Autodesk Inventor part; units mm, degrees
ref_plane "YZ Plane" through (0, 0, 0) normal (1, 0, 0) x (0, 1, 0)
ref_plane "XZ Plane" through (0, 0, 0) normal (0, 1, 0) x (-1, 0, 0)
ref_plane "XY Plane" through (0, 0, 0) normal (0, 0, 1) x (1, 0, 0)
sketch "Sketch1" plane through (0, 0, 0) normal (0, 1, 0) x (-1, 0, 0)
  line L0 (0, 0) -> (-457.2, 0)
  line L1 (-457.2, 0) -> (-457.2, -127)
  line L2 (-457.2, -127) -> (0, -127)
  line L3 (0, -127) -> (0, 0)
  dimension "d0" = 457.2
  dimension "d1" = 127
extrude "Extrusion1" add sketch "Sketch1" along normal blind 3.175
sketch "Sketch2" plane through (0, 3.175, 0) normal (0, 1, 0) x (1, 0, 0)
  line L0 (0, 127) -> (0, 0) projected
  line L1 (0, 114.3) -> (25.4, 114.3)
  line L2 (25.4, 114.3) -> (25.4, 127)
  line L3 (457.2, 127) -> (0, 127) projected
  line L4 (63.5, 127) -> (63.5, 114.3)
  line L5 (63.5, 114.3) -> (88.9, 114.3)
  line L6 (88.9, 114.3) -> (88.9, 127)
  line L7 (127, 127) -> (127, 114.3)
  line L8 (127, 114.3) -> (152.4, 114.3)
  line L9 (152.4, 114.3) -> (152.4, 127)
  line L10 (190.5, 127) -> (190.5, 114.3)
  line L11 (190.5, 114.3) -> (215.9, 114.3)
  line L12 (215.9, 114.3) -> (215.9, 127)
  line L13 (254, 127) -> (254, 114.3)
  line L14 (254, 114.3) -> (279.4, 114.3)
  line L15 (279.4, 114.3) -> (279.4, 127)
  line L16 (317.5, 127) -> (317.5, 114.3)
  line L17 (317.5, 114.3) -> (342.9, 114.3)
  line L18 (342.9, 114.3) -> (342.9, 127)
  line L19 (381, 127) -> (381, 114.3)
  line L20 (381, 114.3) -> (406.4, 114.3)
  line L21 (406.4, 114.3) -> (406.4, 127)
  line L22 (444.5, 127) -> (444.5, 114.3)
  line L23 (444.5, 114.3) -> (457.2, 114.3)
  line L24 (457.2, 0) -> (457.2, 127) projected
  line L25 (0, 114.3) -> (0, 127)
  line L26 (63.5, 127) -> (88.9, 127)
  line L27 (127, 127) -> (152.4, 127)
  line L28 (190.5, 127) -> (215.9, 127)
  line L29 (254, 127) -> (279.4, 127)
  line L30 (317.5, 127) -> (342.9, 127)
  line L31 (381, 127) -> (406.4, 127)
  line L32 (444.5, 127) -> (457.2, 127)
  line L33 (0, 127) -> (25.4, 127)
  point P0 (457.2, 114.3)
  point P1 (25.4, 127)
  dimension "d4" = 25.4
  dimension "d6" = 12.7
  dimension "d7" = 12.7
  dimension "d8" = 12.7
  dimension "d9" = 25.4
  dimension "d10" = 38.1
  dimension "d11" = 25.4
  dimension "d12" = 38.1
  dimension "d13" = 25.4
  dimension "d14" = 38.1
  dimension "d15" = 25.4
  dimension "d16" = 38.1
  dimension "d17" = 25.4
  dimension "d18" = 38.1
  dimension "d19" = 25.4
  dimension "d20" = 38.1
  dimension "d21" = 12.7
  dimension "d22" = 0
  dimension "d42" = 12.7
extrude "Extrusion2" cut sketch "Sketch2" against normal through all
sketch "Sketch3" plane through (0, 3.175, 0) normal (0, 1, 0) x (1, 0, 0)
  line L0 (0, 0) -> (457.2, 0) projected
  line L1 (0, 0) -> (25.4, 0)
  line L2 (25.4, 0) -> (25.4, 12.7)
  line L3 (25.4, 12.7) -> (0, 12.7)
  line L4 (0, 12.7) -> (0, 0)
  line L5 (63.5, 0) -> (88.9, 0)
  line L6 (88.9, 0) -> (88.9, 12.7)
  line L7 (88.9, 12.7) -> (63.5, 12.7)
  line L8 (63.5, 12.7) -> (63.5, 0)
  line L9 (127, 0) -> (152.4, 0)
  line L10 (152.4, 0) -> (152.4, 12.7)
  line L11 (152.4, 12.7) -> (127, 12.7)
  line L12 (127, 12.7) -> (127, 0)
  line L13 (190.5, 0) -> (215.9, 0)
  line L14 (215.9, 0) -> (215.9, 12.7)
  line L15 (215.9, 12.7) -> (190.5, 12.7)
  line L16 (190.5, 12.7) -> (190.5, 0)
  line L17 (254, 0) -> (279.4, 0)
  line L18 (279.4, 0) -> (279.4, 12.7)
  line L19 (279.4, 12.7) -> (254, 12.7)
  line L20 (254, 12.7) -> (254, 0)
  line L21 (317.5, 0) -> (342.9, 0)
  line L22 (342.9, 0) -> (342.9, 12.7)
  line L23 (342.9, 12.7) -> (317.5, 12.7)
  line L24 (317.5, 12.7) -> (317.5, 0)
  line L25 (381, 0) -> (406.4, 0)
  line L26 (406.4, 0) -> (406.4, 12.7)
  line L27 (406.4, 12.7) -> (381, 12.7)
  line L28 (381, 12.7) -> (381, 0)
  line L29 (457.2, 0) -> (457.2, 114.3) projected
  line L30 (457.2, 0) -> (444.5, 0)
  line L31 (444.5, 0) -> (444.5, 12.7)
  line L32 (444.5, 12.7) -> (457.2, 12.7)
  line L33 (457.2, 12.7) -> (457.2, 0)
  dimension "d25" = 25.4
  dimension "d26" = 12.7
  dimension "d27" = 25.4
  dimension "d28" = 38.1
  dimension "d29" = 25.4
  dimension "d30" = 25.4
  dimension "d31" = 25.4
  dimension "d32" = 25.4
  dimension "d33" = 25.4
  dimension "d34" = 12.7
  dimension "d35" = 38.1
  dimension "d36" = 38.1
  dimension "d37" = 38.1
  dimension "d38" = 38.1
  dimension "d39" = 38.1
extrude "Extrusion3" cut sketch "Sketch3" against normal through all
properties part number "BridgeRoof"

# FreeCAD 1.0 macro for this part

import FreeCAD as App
import Part
import Sketcher
from FreeCAD import Vector
Q = App.Units.Quantity

doc = App.newDocument("Part")
body = doc.addObject("PartDesign::Body", "Body")

sketch1 = doc.addObject("Sketcher::SketchObject", "Sketch")
body.addObject(sketch1)
sketch1.AttachmentSupport = (doc.XZ_Plane, [""])
sketch1.MapMode = "FlatFace"
sketch1.addGeometry(Part.LineSegment(Vector(0, -127, 0), Vector(0, 0, 0)), False)
sketch1.addGeometry(Part.LineSegment(Vector(0, 0, 0), Vector(457, 0, 0)), False)
sketch1.addGeometry(Part.LineSegment(Vector(457, 0, 0), Vector(457, -127, 0)), False)
sketch1.addGeometry(Part.LineSegment(Vector(457, -127, 0), Vector(0, -127, 0)), False)
sketch1.addConstraint(Sketcher.Constraint("Coincident", 0, 2, 1, 1))
sketch1.addConstraint(Sketcher.Constraint("Coincident", 1, 2, 2, 1))
sketch1.addConstraint(Sketcher.Constraint("Coincident", 2, 2, 3, 1))
sketch1.addConstraint(Sketcher.Constraint("Coincident", 3, 2, 0, 1))
sketch1.addConstraint(Sketcher.Constraint("Vertical", 0))
sketch1.addConstraint(Sketcher.Constraint("Horizontal", 1))
sketch1.addConstraint(Sketcher.Constraint("Vertical", 2))
sketch1.addConstraint(Sketcher.Constraint("Horizontal", 3))
sketch1.addConstraint(Sketcher.Constraint("Coincident", 0, 2, -1, 1))
sketch1.addConstraint(Sketcher.Constraint("DistanceX", 1, 1, 1, 2, Q("18 in")))
sketch1.addConstraint(Sketcher.Constraint("DistanceY", 0, 1, 0, 2, Q("5 in")))
pad1 = doc.addObject("PartDesign::Pad", "Pad")
body.addObject(pad1)
pad1.Profile = sketch1
pad1.Length = Q("0.125 in")
pad1.Reversed = True

sketch2 = doc.addObject("Sketcher::SketchObject", "Sketch001")
body.addObject(sketch2)
sketch2.AttachmentSupport = (doc.XZ_Plane, [""])
sketch2.MapMode = "FlatFace"
sketch2.AttachmentOffset = App.Placement(Vector(0, 0, -0.125 * 25.4), App.Rotation())
sketch2.addGeometry(Part.LineSegment(Vector(25, -127, 0), Vector(0, -127, 0)), False)
sketch2.addGeometry(Part.LineSegment(Vector(0, -127, 0), Vector(0, -114, 0)), False)
sketch2.addGeometry(Part.LineSegment(Vector(0, -114, 0), Vector(25, -114, 0)), False)
sketch2.addGeometry(Part.LineSegment(Vector(25, -114, 0), Vector(25, -127, 0)), False)
sketch2.addGeometry(Part.LineSegment(Vector(457, -127, 0), Vector(444, -127, 0)), False)
sketch2.addGeometry(Part.LineSegment(Vector(444, -127, 0), Vector(444, -114, 0)), False)
sketch2.addGeometry(Part.LineSegment(Vector(444, -114, 0), Vector(457, -114, 0)), False)
sketch2.addGeometry(Part.LineSegment(Vector(457, -114, 0), Vector(457, -127, 0)), False)
sketch2.addGeometry(Part.LineSegment(Vector(406, -127, 0), Vector(381, -127, 0)), False)
sketch2.addGeometry(Part.LineSegment(Vector(381, -127, 0), Vector(381, -114, 0)), False)
sketch2.addGeometry(Part.LineSegment(Vector(381, -114, 0), Vector(406, -114, 0)), False)
sketch2.addGeometry(Part.LineSegment(Vector(406, -114, 0), Vector(406, -127, 0)), False)
sketch2.addGeometry(Part.LineSegment(Vector(343, -127, 0), Vector(318, -127, 0)), False)
sketch2.addGeometry(Part.LineSegment(Vector(318, -127, 0), Vector(318, -114, 0)), False)
sketch2.addGeometry(Part.LineSegment(Vector(318, -114, 0), Vector(343, -114, 0)), False)
sketch2.addGeometry(Part.LineSegment(Vector(343, -114, 0), Vector(343, -127, 0)), False)
sketch2.addGeometry(Part.LineSegment(Vector(279, -127, 0), Vector(254, -127, 0)), False)
sketch2.addGeometry(Part.LineSegment(Vector(254, -127, 0), Vector(254, -114, 0)), False)
sketch2.addGeometry(Part.LineSegment(Vector(254, -114, 0), Vector(279, -114, 0)), False)
sketch2.addGeometry(Part.LineSegment(Vector(279, -114, 0), Vector(279, -127, 0)), False)
sketch2.addGeometry(Part.LineSegment(Vector(216, -127, 0), Vector(190, -127, 0)), False)
sketch2.addGeometry(Part.LineSegment(Vector(190, -127, 0), Vector(190, -114, 0)), False)
sketch2.addGeometry(Part.LineSegment(Vector(190, -114, 0), Vector(216, -114, 0)), False)
sketch2.addGeometry(Part.LineSegment(Vector(216, -114, 0), Vector(216, -127, 0)), False)
sketch2.addGeometry(Part.LineSegment(Vector(152, -127, 0), Vector(127, -127, 0)), False)
sketch2.addGeometry(Part.LineSegment(Vector(127, -127, 0), Vector(127, -114, 0)), False)
sketch2.addGeometry(Part.LineSegment(Vector(127, -114, 0), Vector(152, -114, 0)), False)
sketch2.addGeometry(Part.LineSegment(Vector(152, -114, 0), Vector(152, -127, 0)), False)
sketch2.addGeometry(Part.LineSegment(Vector(89, -127, 0), Vector(64, -127, 0)), False)
sketch2.addGeometry(Part.LineSegment(Vector(64, -127, 0), Vector(64, -114, 0)), False)
sketch2.addGeometry(Part.LineSegment(Vector(64, -114, 0), Vector(89, -114, 0)), False)
sketch2.addGeometry(Part.LineSegment(Vector(89, -114, 0), Vector(89, -127, 0)), False)
sketch2.addConstraint(Sketcher.Constraint("Coincident", 0, 2, 1, 1))
sketch2.addConstraint(Sketcher.Constraint("Coincident", 1, 2, 2, 1))
sketch2.addConstraint(Sketcher.Constraint("Coincident", 2, 2, 3, 1))
sketch2.addConstraint(Sketcher.Constraint("Coincident", 3, 2, 0, 1))
sketch2.addConstraint(Sketcher.Constraint("Coincident", 4, 2, 5, 1))
sketch2.addConstraint(Sketcher.Constraint("Coincident", 5, 2, 6, 1))
sketch2.addConstraint(Sketcher.Constraint("Coincident", 6, 2, 7, 1))
sketch2.addConstraint(Sketcher.Constraint("Coincident", 7, 2, 4, 1))
sketch2.addConstraint(Sketcher.Constraint("Coincident", 8, 2, 9, 1))
sketch2.addConstraint(Sketcher.Constraint("Coincident", 9, 2, 10, 1))
sketch2.addConstraint(Sketcher.Constraint("Coincident", 10, 2, 11, 1))
sketch2.addConstraint(Sketcher.Constraint("Coincident", 11, 2, 8, 1))
sketch2.addConstraint(Sketcher.Constraint("Coincident", 12, 2, 13, 1))
sketch2.addConstraint(Sketcher.Constraint("Coincident", 13, 2, 14, 1))
sketch2.addConstraint(Sketcher.Constraint("Coincident", 14, 2, 15, 1))
sketch2.addConstraint(Sketcher.Constraint("Coincident", 15, 2, 12, 1))
sketch2.addConstraint(Sketcher.Constraint("Coincident", 16, 2, 17, 1))
sketch2.addConstraint(Sketcher.Constraint("Coincident", 17, 2, 18, 1))
sketch2.addConstraint(Sketcher.Constraint("Coincident", 18, 2, 19, 1))
sketch2.addConstraint(Sketcher.Constraint("Coincident", 19, 2, 16, 1))
sketch2.addConstraint(Sketcher.Constraint("Coincident", 20, 2, 21, 1))
sketch2.addConstraint(Sketcher.Constraint("Coincident", 21, 2, 22, 1))
sketch2.addConstraint(Sketcher.Constraint("Coincident", 22, 2, 23, 1))
sketch2.addConstraint(Sketcher.Constraint("Coincident", 23, 2, 20, 1))
sketch2.addConstraint(Sketcher.Constraint("Coincident", 24, 2, 25, 1))
sketch2.addConstraint(Sketcher.Constraint("Coincident", 25, 2, 26, 1))
sketch2.addConstraint(Sketcher.Constraint("Coincident", 26, 2, 27, 1))
sketch2.addConstraint(Sketcher.Constraint("Coincident", 27, 2, 24, 1))
sketch2.addConstraint(Sketcher.Constraint("Coincident", 28, 2, 29, 1))
sketch2.addConstraint(Sketcher.Constraint("Coincident", 29, 2, 30, 1))
sketch2.addConstraint(Sketcher.Constraint("Coincident", 30, 2, 31, 1))
sketch2.addConstraint(Sketcher.Constraint("Coincident", 31, 2, 28, 1))
sketch2.addConstraint(Sketcher.Constraint("Horizontal", 0))
sketch2.addConstraint(Sketcher.Constraint("Vertical", 1))
sketch2.addConstraint(Sketcher.Constraint("Horizontal", 2))
sketch2.addConstraint(Sketcher.Constraint("Vertical", 3))
sketch2.addConstraint(Sketcher.Constraint("Horizontal", 4))
sketch2.addConstraint(Sketcher.Constraint("Vertical", 5))
sketch2.addConstraint(Sketcher.Constraint("Horizontal", 6))
sketch2.addConstraint(Sketcher.Constraint("Vertical", 7))
sketch2.addConstraint(Sketcher.Constraint("Horizontal", 8))
sketch2.addConstraint(Sketcher.Constraint("Vertical", 9))
sketch2.addConstraint(Sketcher.Constraint("Horizontal", 10))
sketch2.addConstraint(Sketcher.Constraint("Vertical", 11))
sketch2.addConstraint(Sketcher.Constraint("Horizontal", 12))
sketch2.addConstraint(Sketcher.Constraint("Vertical", 13))
sketch2.addConstraint(Sketcher.Constraint("Horizontal", 14))
sketch2.addConstraint(Sketcher.Constraint("Vertical", 15))
sketch2.addConstraint(Sketcher.Constraint("Horizontal", 16))
sketch2.addConstraint(Sketcher.Constraint("Vertical", 17))
sketch2.addConstraint(Sketcher.Constraint("Horizontal", 18))
sketch2.addConstraint(Sketcher.Constraint("Vertical", 19))
sketch2.addConstraint(Sketcher.Constraint("Horizontal", 20))
sketch2.addConstraint(Sketcher.Constraint("Vertical", 21))
sketch2.addConstraint(Sketcher.Constraint("Horizontal", 22))
sketch2.addConstraint(Sketcher.Constraint("Vertical", 23))
sketch2.addConstraint(Sketcher.Constraint("Horizontal", 24))
sketch2.addConstraint(Sketcher.Constraint("Vertical", 25))
sketch2.addConstraint(Sketcher.Constraint("Horizontal", 26))
sketch2.addConstraint(Sketcher.Constraint("Vertical", 27))
sketch2.addConstraint(Sketcher.Constraint("Horizontal", 28))
sketch2.addConstraint(Sketcher.Constraint("Vertical", 29))
sketch2.addConstraint(Sketcher.Constraint("Horizontal", 30))
sketch2.addConstraint(Sketcher.Constraint("Vertical", 31))
sketch2.addConstraint(Sketcher.Constraint("PointOnObject", 0, 2, -2))
sketch2.addConstraint(Sketcher.Constraint("Horizontal", 3, 2, 4, 2))
sketch2.addConstraint(Sketcher.Constraint("Horizontal", 2, 2, 5, 2))
sketch2.addConstraint(Sketcher.Constraint("Horizontal", 7, 2, 8, 2))
sketch2.addConstraint(Sketcher.Constraint("Horizontal", 6, 2, 9, 2))
sketch2.addConstraint(Sketcher.Constraint("Horizontal", 11, 2, 12, 2))
sketch2.addConstraint(Sketcher.Constraint("Horizontal", 10, 2, 13, 2))
sketch2.addConstraint(Sketcher.Constraint("Horizontal", 15, 2, 16, 2))
sketch2.addConstraint(Sketcher.Constraint("Horizontal", 14, 2, 17, 2))
sketch2.addConstraint(Sketcher.Constraint("Horizontal", 19, 2, 20, 2))
sketch2.addConstraint(Sketcher.Constraint("Horizontal", 18, 2, 21, 2))
sketch2.addConstraint(Sketcher.Constraint("Horizontal", 23, 2, 24, 2))
sketch2.addConstraint(Sketcher.Constraint("Horizontal", 22, 2, 25, 2))
sketch2.addConstraint(Sketcher.Constraint("Horizontal", 27, 2, 28, 2))
sketch2.addConstraint(Sketcher.Constraint("Horizontal", 26, 2, 29, 2))
sketch2.addConstraint(Sketcher.Constraint("Equal", 2, 8))
sketch2.addConstraint(Sketcher.Constraint("Equal", 10, 12))
sketch2.addConstraint(Sketcher.Constraint("Equal", 14, 16))
sketch2.addConstraint(Sketcher.Constraint("Equal", 18, 20))
sketch2.addConstraint(Sketcher.Constraint("Equal", 22, 24))
sketch2.addConstraint(Sketcher.Constraint("Equal", 26, 28))
sketch2.addConstraint(Sketcher.Constraint("Equal", 6, 1))
sketch2.addConstraint(Sketcher.Constraint("DistanceX", 0, 2, 0, 1, Q("1 in")))
sketch2.addConstraint(Sketcher.Constraint("DistanceX", 4, 2, 4, 1, Q("0.5 in")))
sketch2.addConstraint(Sketcher.Constraint("DistanceX", 10, 2, 5, 2, Q("1.5 in")))
sketch2.addConstraint(Sketcher.Constraint("DistanceX", 14, 2, 9, 2, Q("1.5 in")))
sketch2.addConstraint(Sketcher.Constraint("DistanceX", 18, 2, 13, 2, Q("1.5 in")))
sketch2.addConstraint(Sketcher.Constraint("DistanceX", 22, 2, 17, 2, Q("1.5 in")))
sketch2.addConstraint(Sketcher.Constraint("DistanceX", 26, 2, 21, 2, Q("1.5 in")))
sketch2.addConstraint(Sketcher.Constraint("DistanceX", 3, 2, 28, 2, Q("1.5 in")))
sketch2.addConstraint(Sketcher.Constraint("DistanceX", 30, 2, 25, 2, Q("1.5 in")))
sketch2.addConstraint(Sketcher.Constraint("DistanceY", 0, 2, -1, 1, Q("5 in")))
pocket1 = doc.addObject("PartDesign::Pocket", "Pocket")
body.addObject(pocket1)
pocket1.Profile = sketch2
pocket1.Type = "ThroughAll"
pocket1.Reversed = True

sketch3 = doc.addObject("Sketcher::SketchObject", "Sketch002")
body.addObject(sketch3)
sketch3.AttachmentSupport = (doc.XZ_Plane, [""])
sketch3.MapMode = "FlatFace"
sketch3.AttachmentOffset = App.Placement(Vector(0, 0, -0.125 * 25.4), App.Rotation())
sketch3.addGeometry(Part.LineSegment(Vector(0, -13, 0), Vector(0, 0, 0)), False)
sketch3.addGeometry(Part.LineSegment(Vector(0, 0, 0), Vector(25, 0, 0)), False)
sketch3.addGeometry(Part.LineSegment(Vector(25, 0, 0), Vector(25, -13, 0)), False)
sketch3.addGeometry(Part.LineSegment(Vector(25, -13, 0), Vector(0, -13, 0)), False)
sketch3.addGeometry(Part.LineSegment(Vector(444, -13, 0), Vector(444, 0, 0)), False)
sketch3.addGeometry(Part.LineSegment(Vector(444, 0, 0), Vector(457, 0, 0)), False)
sketch3.addGeometry(Part.LineSegment(Vector(457, 0, 0), Vector(457, -13, 0)), False)
sketch3.addGeometry(Part.LineSegment(Vector(457, -13, 0), Vector(444, -13, 0)), False)
sketch3.addGeometry(Part.LineSegment(Vector(381, -13, 0), Vector(381, 0, 0)), False)
sketch3.addGeometry(Part.LineSegment(Vector(381, 0, 0), Vector(406, 0, 0)), False)
sketch3.addGeometry(Part.LineSegment(Vector(406, 0, 0), Vector(406, -13, 0)), False)
sketch3.addGeometry(Part.LineSegment(Vector(406, -13, 0), Vector(381, -13, 0)), False)
sketch3.addGeometry(Part.LineSegment(Vector(318, -13, 0), Vector(318, 0, 0)), False)
sketch3.addGeometry(Part.LineSegment(Vector(318, 0, 0), Vector(343, 0, 0)), False)
sketch3.addGeometry(Part.LineSegment(Vector(343, 0, 0), Vector(343, -13, 0)), False)
sketch3.addGeometry(Part.LineSegment(Vector(343, -13, 0), Vector(318, -13, 0)), False)
sketch3.addGeometry(Part.LineSegment(Vector(254, -13, 0), Vector(254, 0, 0)), False)
sketch3.addGeometry(Part.LineSegment(Vector(254, 0, 0), Vector(279, 0, 0)), False)
sketch3.addGeometry(Part.LineSegment(Vector(279, 0, 0), Vector(279, -13, 0)), False)
sketch3.addGeometry(Part.LineSegment(Vector(279, -13, 0), Vector(254, -13, 0)), False)
sketch3.addGeometry(Part.LineSegment(Vector(190, -13, 0), Vector(190, 0, 0)), False)
sketch3.addGeometry(Part.LineSegment(Vector(190, 0, 0), Vector(216, 0, 0)), False)
sketch3.addGeometry(Part.LineSegment(Vector(216, 0, 0), Vector(216, -13, 0)), False)
sketch3.addGeometry(Part.LineSegment(Vector(216, -13, 0), Vector(190, -13, 0)), False)
sketch3.addGeometry(Part.LineSegment(Vector(127, -13, 0), Vector(127, 0, 0)), False)
sketch3.addGeometry(Part.LineSegment(Vector(127, 0, 0), Vector(152, 0, 0)), False)
sketch3.addGeometry(Part.LineSegment(Vector(152, 0, 0), Vector(152, -13, 0)), False)
sketch3.addGeometry(Part.LineSegment(Vector(152, -13, 0), Vector(127, -13, 0)), False)
sketch3.addGeometry(Part.LineSegment(Vector(64, -13, 0), Vector(64, 0, 0)), False)
sketch3.addGeometry(Part.LineSegment(Vector(64, 0, 0), Vector(89, 0, 0)), False)
sketch3.addGeometry(Part.LineSegment(Vector(89, 0, 0), Vector(89, -13, 0)), False)
sketch3.addGeometry(Part.LineSegment(Vector(89, -13, 0), Vector(64, -13, 0)), False)
sketch3.addConstraint(Sketcher.Constraint("Coincident", 0, 2, 1, 1))
sketch3.addConstraint(Sketcher.Constraint("Coincident", 1, 2, 2, 1))
sketch3.addConstraint(Sketcher.Constraint("Coincident", 2, 2, 3, 1))
sketch3.addConstraint(Sketcher.Constraint("Coincident", 3, 2, 0, 1))
sketch3.addConstraint(Sketcher.Constraint("Coincident", 4, 2, 5, 1))
sketch3.addConstraint(Sketcher.Constraint("Coincident", 5, 2, 6, 1))
sketch3.addConstraint(Sketcher.Constraint("Coincident", 6, 2, 7, 1))
sketch3.addConstraint(Sketcher.Constraint("Coincident", 7, 2, 4, 1))
sketch3.addConstraint(Sketcher.Constraint("Coincident", 8, 2, 9, 1))
sketch3.addConstraint(Sketcher.Constraint("Coincident", 9, 2, 10, 1))
sketch3.addConstraint(Sketcher.Constraint("Coincident", 10, 2, 11, 1))
sketch3.addConstraint(Sketcher.Constraint("Coincident", 11, 2, 8, 1))
sketch3.addConstraint(Sketcher.Constraint("Coincident", 12, 2, 13, 1))
sketch3.addConstraint(Sketcher.Constraint("Coincident", 13, 2, 14, 1))
sketch3.addConstraint(Sketcher.Constraint("Coincident", 14, 2, 15, 1))
sketch3.addConstraint(Sketcher.Constraint("Coincident", 15, 2, 12, 1))
sketch3.addConstraint(Sketcher.Constraint("Coincident", 16, 2, 17, 1))
sketch3.addConstraint(Sketcher.Constraint("Coincident", 17, 2, 18, 1))
sketch3.addConstraint(Sketcher.Constraint("Coincident", 18, 2, 19, 1))
sketch3.addConstraint(Sketcher.Constraint("Coincident", 19, 2, 16, 1))
sketch3.addConstraint(Sketcher.Constraint("Coincident", 20, 2, 21, 1))
sketch3.addConstraint(Sketcher.Constraint("Coincident", 21, 2, 22, 1))
sketch3.addConstraint(Sketcher.Constraint("Coincident", 22, 2, 23, 1))
sketch3.addConstraint(Sketcher.Constraint("Coincident", 23, 2, 20, 1))
sketch3.addConstraint(Sketcher.Constraint("Coincident", 24, 2, 25, 1))
sketch3.addConstraint(Sketcher.Constraint("Coincident", 25, 2, 26, 1))
sketch3.addConstraint(Sketcher.Constraint("Coincident", 26, 2, 27, 1))
sketch3.addConstraint(Sketcher.Constraint("Coincident", 27, 2, 24, 1))
sketch3.addConstraint(Sketcher.Constraint("Coincident", 28, 2, 29, 1))
sketch3.addConstraint(Sketcher.Constraint("Coincident", 29, 2, 30, 1))
sketch3.addConstraint(Sketcher.Constraint("Coincident", 30, 2, 31, 1))
sketch3.addConstraint(Sketcher.Constraint("Coincident", 31, 2, 28, 1))
sketch3.addConstraint(Sketcher.Constraint("Vertical", 0))
sketch3.addConstraint(Sketcher.Constraint("Horizontal", 1))
sketch3.addConstraint(Sketcher.Constraint("Vertical", 2))
sketch3.addConstraint(Sketcher.Constraint("Horizontal", 3))
sketch3.addConstraint(Sketcher.Constraint("Vertical", 4))
sketch3.addConstraint(Sketcher.Constraint("Horizontal", 5))
sketch3.addConstraint(Sketcher.Constraint("Vertical", 6))
sketch3.addConstraint(Sketcher.Constraint("Horizontal", 7))
sketch3.addConstraint(Sketcher.Constraint("Vertical", 8))
sketch3.addConstraint(Sketcher.Constraint("Horizontal", 9))
sketch3.addConstraint(Sketcher.Constraint("Vertical", 10))
sketch3.addConstraint(Sketcher.Constraint("Horizontal", 11))
sketch3.addConstraint(Sketcher.Constraint("Vertical", 12))
sketch3.addConstraint(Sketcher.Constraint("Horizontal", 13))
sketch3.addConstraint(Sketcher.Constraint("Vertical", 14))
sketch3.addConstraint(Sketcher.Constraint("Horizontal", 15))
sketch3.addConstraint(Sketcher.Constraint("Vertical", 16))
sketch3.addConstraint(Sketcher.Constraint("Horizontal", 17))
sketch3.addConstraint(Sketcher.Constraint("Vertical", 18))
sketch3.addConstraint(Sketcher.Constraint("Horizontal", 19))
sketch3.addConstraint(Sketcher.Constraint("Vertical", 20))
sketch3.addConstraint(Sketcher.Constraint("Horizontal", 21))
sketch3.addConstraint(Sketcher.Constraint("Vertical", 22))
sketch3.addConstraint(Sketcher.Constraint("Horizontal", 23))
sketch3.addConstraint(Sketcher.Constraint("Vertical", 24))
sketch3.addConstraint(Sketcher.Constraint("Horizontal", 25))
sketch3.addConstraint(Sketcher.Constraint("Vertical", 26))
sketch3.addConstraint(Sketcher.Constraint("Horizontal", 27))
sketch3.addConstraint(Sketcher.Constraint("Vertical", 28))
sketch3.addConstraint(Sketcher.Constraint("Horizontal", 29))
sketch3.addConstraint(Sketcher.Constraint("Vertical", 30))
sketch3.addConstraint(Sketcher.Constraint("Horizontal", 31))
sketch3.addConstraint(Sketcher.Constraint("Coincident", 0, 2, -1, 1))
sketch3.addConstraint(Sketcher.Constraint("PointOnObject", 4, 2, -1))
sketch3.addConstraint(Sketcher.Constraint("PointOnObject", 8, 2, -1))
sketch3.addConstraint(Sketcher.Constraint("PointOnObject", 12, 2, -1))
sketch3.addConstraint(Sketcher.Constraint("PointOnObject", 16, 2, -1))
sketch3.addConstraint(Sketcher.Constraint("PointOnObject", 20, 2, -1))
sketch3.addConstraint(Sketcher.Constraint("PointOnObject", 24, 2, -1))
sketch3.addConstraint(Sketcher.Constraint("PointOnObject", 28, 2, -1))
sketch3.addConstraint(Sketcher.Constraint("Horizontal", 3, 2, 6, 2))
sketch3.addConstraint(Sketcher.Constraint("Horizontal", 7, 2, 10, 2))
sketch3.addConstraint(Sketcher.Constraint("Horizontal", 11, 2, 14, 2))
sketch3.addConstraint(Sketcher.Constraint("Horizontal", 15, 2, 18, 2))
sketch3.addConstraint(Sketcher.Constraint("Horizontal", 19, 2, 22, 2))
sketch3.addConstraint(Sketcher.Constraint("Horizontal", 23, 2, 26, 2))
sketch3.addConstraint(Sketcher.Constraint("Horizontal", 27, 2, 30, 2))
sketch3.addConstraint(Sketcher.Constraint("Equal", 3, 9))
sketch3.addConstraint(Sketcher.Constraint("Equal", 11, 13))
sketch3.addConstraint(Sketcher.Constraint("Equal", 15, 17))
sketch3.addConstraint(Sketcher.Constraint("Equal", 19, 21))
sketch3.addConstraint(Sketcher.Constraint("Equal", 23, 25))
sketch3.addConstraint(Sketcher.Constraint("Equal", 27, 29))
sketch3.addConstraint(Sketcher.Constraint("Equal", 7, 0))
sketch3.addConstraint(Sketcher.Constraint("DistanceX", 1, 1, 1, 2, Q("1 in")))
sketch3.addConstraint(Sketcher.Constraint("DistanceX", 5, 1, 5, 2, Q("0.5 in")))
sketch3.addConstraint(Sketcher.Constraint("DistanceX", 9, 2, 4, 2, Q("1.5 in")))
sketch3.addConstraint(Sketcher.Constraint("DistanceX", 13, 2, 8, 2, Q("1.5 in")))
sketch3.addConstraint(Sketcher.Constraint("DistanceX", 17, 2, 12, 2, Q("1.5 in")))
sketch3.addConstraint(Sketcher.Constraint("DistanceX", 21, 2, 16, 2, Q("1.5 in")))
sketch3.addConstraint(Sketcher.Constraint("DistanceX", 25, 2, 20, 2, Q("1.5 in")))
sketch3.addConstraint(Sketcher.Constraint("DistanceX", 1, 2, 28, 2, Q("1.5 in")))
sketch3.addConstraint(Sketcher.Constraint("DistanceX", 29, 2, 24, 2, Q("1.5 in")))
pocket2 = doc.addObject("PartDesign::Pocket", "Pocket001")
body.addObject(pocket2)
pocket2.Profile = sketch3
pocket2.Type = "ThroughAll"
pocket2.Reversed = True

doc.recompute()
